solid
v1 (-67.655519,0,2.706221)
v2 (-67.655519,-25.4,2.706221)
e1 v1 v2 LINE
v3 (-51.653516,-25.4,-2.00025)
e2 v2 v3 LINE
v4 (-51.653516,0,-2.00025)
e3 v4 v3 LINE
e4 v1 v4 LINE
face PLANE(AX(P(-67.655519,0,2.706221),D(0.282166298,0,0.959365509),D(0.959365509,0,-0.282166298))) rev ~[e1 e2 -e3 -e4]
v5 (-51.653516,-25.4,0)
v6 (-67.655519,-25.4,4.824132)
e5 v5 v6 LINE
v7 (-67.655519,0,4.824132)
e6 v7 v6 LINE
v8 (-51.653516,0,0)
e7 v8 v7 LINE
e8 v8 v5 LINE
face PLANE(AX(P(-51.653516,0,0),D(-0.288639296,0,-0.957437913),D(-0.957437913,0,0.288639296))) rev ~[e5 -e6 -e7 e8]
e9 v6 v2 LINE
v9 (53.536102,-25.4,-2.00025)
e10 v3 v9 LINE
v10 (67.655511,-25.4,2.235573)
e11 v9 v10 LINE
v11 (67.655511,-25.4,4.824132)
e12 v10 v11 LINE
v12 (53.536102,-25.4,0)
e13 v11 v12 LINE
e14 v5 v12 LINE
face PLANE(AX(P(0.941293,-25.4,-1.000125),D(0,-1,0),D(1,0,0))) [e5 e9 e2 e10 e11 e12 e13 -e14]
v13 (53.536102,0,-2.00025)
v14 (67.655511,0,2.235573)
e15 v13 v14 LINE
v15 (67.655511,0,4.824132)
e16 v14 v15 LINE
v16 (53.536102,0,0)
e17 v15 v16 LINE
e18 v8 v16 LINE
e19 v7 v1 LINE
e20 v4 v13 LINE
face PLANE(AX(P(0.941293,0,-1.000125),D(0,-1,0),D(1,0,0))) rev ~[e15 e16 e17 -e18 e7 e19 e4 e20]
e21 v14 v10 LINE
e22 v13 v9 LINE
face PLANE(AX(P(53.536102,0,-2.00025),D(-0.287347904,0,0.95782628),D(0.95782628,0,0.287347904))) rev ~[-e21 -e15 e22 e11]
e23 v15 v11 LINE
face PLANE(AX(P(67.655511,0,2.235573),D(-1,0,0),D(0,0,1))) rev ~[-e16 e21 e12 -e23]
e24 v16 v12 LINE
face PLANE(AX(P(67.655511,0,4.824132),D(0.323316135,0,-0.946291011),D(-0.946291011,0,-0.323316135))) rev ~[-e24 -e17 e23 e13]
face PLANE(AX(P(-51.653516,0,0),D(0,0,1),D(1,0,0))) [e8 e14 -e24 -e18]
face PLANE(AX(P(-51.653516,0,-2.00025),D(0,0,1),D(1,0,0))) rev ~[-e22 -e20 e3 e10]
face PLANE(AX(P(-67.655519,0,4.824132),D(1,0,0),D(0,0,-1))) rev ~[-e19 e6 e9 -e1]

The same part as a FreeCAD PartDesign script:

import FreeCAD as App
import Part
import Sketcher

V = App.Vector
Q = App.Units.Quantity


def add_polygon(sketch, points):
    """Adds a closed chain of lines whose ends are joined by coincident constraints."""
    first, n = sketch.GeometryCount, len(points)
    for a, b in zip(points, points[1:] + points[:1]):
        sketch.addGeometry(Part.LineSegment(App.Vector(*a, 0), App.Vector(*b, 0)), False)
    for i in range(n):
        sketch.addConstraint(Sketcher.Constraint("Coincident", first + i, 2, first + (i + 1) % n, 1))

doc = App.newDocument("Part")
body = doc.addObject("PartDesign::Body", "Body")

# Sketch on XZ plane
sketch1 = body.newObject("Sketcher::SketchObject", "Sketch")
sketch1.AttachmentSupport = (doc.getObject("XZ_Plane"), [""])
sketch1.MapMode = "FlatFace"
add_polygon(sketch1, [(-51.7, -2), (53.5, -2), (67.7, 2.2), (67.7, 4.8), (53.5, 0), (-51.7, 0), (-67.7, 4.8), (-67.7, 2.7)])  # lines 0-7
sketch1.addConstraint([
    Sketcher.Constraint("Horizontal", 0),
    Sketcher.Constraint("Vertical", 2),
    Sketcher.Constraint("Horizontal", 4),
    Sketcher.Constraint("Vertical", 6),
    Sketcher.Constraint("Symmetric", 2, 2, 5, 2, -2),
    Sketcher.Constraint("PointOnObject", 3, 2, -1),
    Sketcher.Constraint("Vertical", 0, 2, 3, 2),
    Sketcher.Constraint("Vertical", 4, 2, 7, 2),
    Sketcher.Constraint("DistanceX", 5, 2, 4, 2, Q("0.6300001 in")),
    Sketcher.Constraint("DistanceY", 2, 1, 2, 2, 2.588559),
    Sketcher.Constraint("DistanceY", 6, 2, 6, 1, 2.117911),
    Sketcher.Constraint("Distance", 3, 14.92079),
    Sketcher.Constraint("Distance", 5, 16.713358),
    Sketcher.Constraint("DistanceX", 0, 1, 0, 2, 105.189618),
    Sketcher.Constraint("DistanceY", 0, 2, -1, 1, 2.00025),
])
pad1 = body.newObject("PartDesign::Pad", "Pad")
pad1.Profile = sketch1
pad1.Length = Q("1 in")

doc.recompute()
